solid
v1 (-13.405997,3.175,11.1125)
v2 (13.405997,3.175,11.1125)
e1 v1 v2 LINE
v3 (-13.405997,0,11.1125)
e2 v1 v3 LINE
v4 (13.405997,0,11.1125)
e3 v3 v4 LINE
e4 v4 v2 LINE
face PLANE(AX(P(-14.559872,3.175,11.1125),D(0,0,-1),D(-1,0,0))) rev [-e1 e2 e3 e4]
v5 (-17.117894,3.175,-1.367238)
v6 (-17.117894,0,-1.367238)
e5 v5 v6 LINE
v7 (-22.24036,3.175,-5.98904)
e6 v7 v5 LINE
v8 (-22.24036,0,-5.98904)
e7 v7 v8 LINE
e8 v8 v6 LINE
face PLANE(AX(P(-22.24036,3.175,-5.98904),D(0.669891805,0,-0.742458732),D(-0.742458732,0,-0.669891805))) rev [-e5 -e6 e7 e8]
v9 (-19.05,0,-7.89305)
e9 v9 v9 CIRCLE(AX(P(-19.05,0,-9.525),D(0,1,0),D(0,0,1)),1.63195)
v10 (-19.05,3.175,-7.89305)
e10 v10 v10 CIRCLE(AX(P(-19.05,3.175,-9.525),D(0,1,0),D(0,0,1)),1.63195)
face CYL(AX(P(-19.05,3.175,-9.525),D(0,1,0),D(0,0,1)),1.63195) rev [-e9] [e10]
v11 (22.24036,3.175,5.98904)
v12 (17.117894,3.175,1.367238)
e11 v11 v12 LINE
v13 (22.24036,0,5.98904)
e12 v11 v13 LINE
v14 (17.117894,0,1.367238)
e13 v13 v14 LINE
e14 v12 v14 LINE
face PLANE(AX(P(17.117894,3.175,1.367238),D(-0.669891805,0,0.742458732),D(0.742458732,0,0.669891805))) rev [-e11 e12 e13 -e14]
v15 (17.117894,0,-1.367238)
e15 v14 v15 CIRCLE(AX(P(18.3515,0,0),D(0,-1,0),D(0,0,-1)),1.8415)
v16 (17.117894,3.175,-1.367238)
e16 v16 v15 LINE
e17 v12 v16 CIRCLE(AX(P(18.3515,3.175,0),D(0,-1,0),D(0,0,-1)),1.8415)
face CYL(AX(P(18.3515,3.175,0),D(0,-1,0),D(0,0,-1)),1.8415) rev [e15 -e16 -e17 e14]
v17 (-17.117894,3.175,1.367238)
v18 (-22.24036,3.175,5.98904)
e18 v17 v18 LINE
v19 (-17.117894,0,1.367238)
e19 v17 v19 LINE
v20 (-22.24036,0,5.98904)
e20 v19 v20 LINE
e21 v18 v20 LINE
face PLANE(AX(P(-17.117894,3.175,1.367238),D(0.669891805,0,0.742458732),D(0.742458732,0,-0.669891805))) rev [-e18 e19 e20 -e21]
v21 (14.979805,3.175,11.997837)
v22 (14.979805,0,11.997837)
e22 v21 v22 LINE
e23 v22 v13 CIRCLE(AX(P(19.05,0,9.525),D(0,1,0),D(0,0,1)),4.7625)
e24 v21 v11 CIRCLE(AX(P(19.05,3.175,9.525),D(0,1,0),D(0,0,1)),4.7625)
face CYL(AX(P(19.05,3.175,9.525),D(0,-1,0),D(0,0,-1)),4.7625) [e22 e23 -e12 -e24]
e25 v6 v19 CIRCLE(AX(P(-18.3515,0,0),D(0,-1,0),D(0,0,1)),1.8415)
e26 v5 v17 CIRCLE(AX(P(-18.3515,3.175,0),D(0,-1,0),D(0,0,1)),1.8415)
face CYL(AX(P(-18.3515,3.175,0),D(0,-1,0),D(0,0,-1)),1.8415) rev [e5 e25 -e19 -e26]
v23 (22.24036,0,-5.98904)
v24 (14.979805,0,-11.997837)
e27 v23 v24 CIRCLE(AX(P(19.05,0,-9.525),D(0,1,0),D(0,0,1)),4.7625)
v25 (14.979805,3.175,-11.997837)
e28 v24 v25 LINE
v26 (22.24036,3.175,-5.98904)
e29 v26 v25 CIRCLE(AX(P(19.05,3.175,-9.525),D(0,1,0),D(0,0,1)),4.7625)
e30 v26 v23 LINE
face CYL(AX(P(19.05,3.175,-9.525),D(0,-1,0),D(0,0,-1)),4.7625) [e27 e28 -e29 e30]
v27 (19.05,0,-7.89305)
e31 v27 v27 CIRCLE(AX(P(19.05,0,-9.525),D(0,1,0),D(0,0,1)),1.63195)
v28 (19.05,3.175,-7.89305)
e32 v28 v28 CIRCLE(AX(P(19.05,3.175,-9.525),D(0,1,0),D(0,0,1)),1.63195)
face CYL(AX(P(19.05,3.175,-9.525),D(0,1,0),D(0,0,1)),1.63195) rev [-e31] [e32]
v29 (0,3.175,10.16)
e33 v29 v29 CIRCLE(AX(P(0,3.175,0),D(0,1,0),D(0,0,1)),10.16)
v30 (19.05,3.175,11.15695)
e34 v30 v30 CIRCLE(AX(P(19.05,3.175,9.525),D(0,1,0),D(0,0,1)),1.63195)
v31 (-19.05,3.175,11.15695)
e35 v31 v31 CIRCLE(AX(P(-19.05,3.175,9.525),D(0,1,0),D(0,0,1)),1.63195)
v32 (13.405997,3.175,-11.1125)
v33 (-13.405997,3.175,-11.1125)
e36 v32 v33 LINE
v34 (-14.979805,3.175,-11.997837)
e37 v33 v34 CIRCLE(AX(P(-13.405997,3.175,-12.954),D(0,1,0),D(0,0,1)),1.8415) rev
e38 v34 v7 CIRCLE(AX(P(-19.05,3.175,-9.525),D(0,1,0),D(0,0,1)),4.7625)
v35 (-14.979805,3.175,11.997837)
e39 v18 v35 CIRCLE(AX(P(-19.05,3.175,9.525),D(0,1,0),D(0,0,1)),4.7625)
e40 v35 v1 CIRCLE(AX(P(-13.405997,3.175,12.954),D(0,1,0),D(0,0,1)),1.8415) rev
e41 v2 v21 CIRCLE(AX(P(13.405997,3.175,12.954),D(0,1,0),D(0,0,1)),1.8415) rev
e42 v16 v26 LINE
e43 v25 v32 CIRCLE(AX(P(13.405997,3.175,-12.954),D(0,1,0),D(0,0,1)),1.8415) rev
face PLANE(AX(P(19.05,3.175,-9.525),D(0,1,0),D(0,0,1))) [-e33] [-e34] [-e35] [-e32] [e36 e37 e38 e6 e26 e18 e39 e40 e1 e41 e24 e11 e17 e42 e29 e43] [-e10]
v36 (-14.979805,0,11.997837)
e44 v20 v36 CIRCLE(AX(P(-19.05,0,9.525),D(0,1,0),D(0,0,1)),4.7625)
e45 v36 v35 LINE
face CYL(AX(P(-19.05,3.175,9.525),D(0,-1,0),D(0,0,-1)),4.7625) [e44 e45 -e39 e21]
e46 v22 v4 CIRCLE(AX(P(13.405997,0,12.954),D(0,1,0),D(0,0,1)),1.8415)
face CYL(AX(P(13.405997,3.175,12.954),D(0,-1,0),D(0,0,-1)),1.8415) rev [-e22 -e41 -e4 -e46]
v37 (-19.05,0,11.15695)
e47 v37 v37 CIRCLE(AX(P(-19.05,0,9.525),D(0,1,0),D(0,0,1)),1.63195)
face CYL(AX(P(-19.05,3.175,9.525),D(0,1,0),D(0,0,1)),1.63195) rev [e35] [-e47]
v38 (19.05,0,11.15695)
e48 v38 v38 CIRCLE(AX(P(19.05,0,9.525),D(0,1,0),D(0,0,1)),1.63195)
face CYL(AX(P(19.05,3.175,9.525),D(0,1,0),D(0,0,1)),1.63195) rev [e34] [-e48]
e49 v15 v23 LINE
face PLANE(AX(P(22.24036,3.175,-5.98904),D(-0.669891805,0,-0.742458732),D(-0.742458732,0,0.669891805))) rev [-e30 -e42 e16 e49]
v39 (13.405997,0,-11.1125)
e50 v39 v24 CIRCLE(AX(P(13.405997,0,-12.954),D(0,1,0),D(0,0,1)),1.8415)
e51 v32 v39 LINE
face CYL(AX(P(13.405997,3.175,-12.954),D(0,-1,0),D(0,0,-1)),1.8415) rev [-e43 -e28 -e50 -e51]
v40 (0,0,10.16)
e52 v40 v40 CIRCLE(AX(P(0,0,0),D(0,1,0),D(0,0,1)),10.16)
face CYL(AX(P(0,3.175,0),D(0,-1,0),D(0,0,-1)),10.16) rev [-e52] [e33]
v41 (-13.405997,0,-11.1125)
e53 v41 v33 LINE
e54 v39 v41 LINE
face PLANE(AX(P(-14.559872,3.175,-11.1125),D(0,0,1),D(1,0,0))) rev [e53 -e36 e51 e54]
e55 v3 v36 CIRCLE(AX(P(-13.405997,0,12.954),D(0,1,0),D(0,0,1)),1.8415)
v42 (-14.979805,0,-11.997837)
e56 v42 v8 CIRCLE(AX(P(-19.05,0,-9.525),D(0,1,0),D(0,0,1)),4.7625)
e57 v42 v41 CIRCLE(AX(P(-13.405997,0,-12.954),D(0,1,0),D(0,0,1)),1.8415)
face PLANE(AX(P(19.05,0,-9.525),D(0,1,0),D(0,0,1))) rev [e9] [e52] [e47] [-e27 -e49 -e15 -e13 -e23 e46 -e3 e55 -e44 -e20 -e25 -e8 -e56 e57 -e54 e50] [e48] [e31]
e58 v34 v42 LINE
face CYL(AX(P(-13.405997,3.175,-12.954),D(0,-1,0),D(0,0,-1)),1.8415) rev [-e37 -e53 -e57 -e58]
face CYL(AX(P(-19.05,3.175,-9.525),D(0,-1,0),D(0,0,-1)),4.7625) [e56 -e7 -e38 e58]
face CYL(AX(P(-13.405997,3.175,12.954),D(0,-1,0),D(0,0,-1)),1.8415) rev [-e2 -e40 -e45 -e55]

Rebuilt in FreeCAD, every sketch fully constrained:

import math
import FreeCAD as App
import Part
import Sketcher

V = App.Vector
Q = App.Units.Quantity


def edges_at(feature, points):
    """Names of the edges that pass closest to the given points."""
    edges = feature.Shape.Edges
    near = lambda p: min(range(len(edges)), key=lambda i: edges[i].distToShape(Part.Vertex(*p))[0])
    return sorted({f"Edge{near(p) + 1}" for p in points})

doc = App.newDocument("Part")
body = doc.addObject("PartDesign::Body", "Body")

# Sketch on XZ plane
sketch1 = body.newObject("Sketcher::SketchObject", "Sketch")
sketch1.AttachmentSupport = (doc.getObject("XZ_Plane"), [""])
sketch1.MapMode = "FlatFace"
sketch1.addGeometry([
    Part.LineSegment(V(-22.24036, -5.98904, 0), V(-17.117894, -1.367238, 0)),  # 0
    Part.ArcOfCircle(Part.Circle(V(-18.3515, 0, 0), V(0, 0, 1), 1.8415), math.radians(-47.941285), math.radians(47.941285)),  # 1
    Part.LineSegment(V(-17.117894, 1.367238, 0), V(-22.24036, 5.98904, 0)),  # 2
    Part.ArcOfCircle(Part.Circle(V(-19.05, 9.525, 0), V(0, 0, 1), 4.7625), math.radians(19.471221), math.radians(227.941285)),  # 3
    Part.LineSegment(V(-14.559872, 11.1125, 0), V(14.559872, 11.1125, 0)),  # 4
    Part.ArcOfCircle(Part.Circle(V(19.05, 9.525, 0), V(0, 0, 1), 4.7625), math.radians(-47.941285), math.radians(160.528779)),  # 5
    Part.LineSegment(V(22.24036, 5.98904, 0), V(17.117894, 1.367238, 0)),  # 6
    Part.ArcOfCircle(Part.Circle(V(18.3515, 0, 0), V(0, 0, 1), 1.8415), math.radians(132.058715), math.radians(227.941285)),  # 7
    Part.LineSegment(V(17.117894, -1.367238, 0), V(22.24036, -5.98904, 0)),  # 8
    Part.ArcOfCircle(Part.Circle(V(19.05, -9.525, 0), V(0, 0, 1), 4.7625), math.radians(-160.528779), math.radians(47.941285)),  # 9
    Part.LineSegment(V(14.559872, -11.1125, 0), V(-14.559872, -11.1125, 0)),  # 10
    Part.ArcOfCircle(Part.Circle(V(-19.05, -9.525, 0), V(0, 0, 1), 4.7625), math.radians(132.058715), math.radians(340.528779)),  # 11
    Part.Circle(V(0, 0, 0), V(0, 0, 1), 10.16),  # 12
], False)
sketch1.addConstraint([
    Sketcher.Constraint("Tangent", 0, 2, 1, 1),
    Sketcher.Constraint("Tangent", 1, 2, 2, 1),
    Sketcher.Constraint("Tangent", 2, 2, 3, 2),
    Sketcher.Constraint("Coincident", 3, 1, 4, 1),
    Sketcher.Constraint("Coincident", 4, 2, 5, 2),
    Sketcher.Constraint("Tangent", 5, 1, 6, 1),
    Sketcher.Constraint("Tangent", 6, 2, 7, 1),
    Sketcher.Constraint("Tangent", 7, 2, 8, 1),
    Sketcher.Constraint("Tangent", 8, 2, 9, 2),
    Sketcher.Constraint("Coincident", 9, 1, 10, 1),
    Sketcher.Constraint("Coincident", 10, 2, 11, 2),
    Sketcher.Constraint("Tangent", 11, 1, 0, 1),
    Sketcher.Constraint("Horizontal", 4),
    Sketcher.Constraint("Horizontal", 10),
    Sketcher.Constraint("Coincident", 12, 3, -1, 1),
    Sketcher.Constraint("Equal", 3, 5),
    Sketcher.Constraint("Equal", 1, 7),
    Sketcher.Constraint("Equal", 5, 9),
    Sketcher.Constraint("Equal", 9, 11),
    Sketcher.Constraint("Symmetric", 1, 3, 7, 3, -1, 1),
    Sketcher.Constraint("Symmetric", 3, 3, 9, 3, -1, 1),
    Sketcher.Constraint("Symmetric", 5, 3, 11, 3, -1, 1),
    Sketcher.Constraint("Symmetric", 3, 3, 5, 3, -2),
    Sketcher.Constraint("PointOnObject", 1, 3, -1),
    Sketcher.Constraint("Vertical", 4, 2, 9, 1),
    Sketcher.Constraint("Diameter", 12, Q("0.8 in")),
    Sketcher.Constraint("Radius", 3, Q("0.1875 in")),
    Sketcher.Constraint("Radius", 1, Q("0.0725 in")),
    Sketcher.Constraint("DistanceX", 3, 3, 5, 3, Q("1.5 in")),
    Sketcher.Constraint("DistanceY", 9, 3, 5, 3, Q("0.75 in")),
    Sketcher.Constraint("DistanceY", -1, 1, 3, 1, Q("0.4375 in")),
    Sketcher.Constraint("DistanceX", 1, 3, 7, 3, Q("1.445 in")),
])
pad1 = body.newObject("PartDesign::Pad", "Pad")
pad1.Profile = sketch1
pad1.Length = Q("0.125 in")
pad1.Reversed = True

# Sketch on XZ plane
sketch2 = body.newObject("Sketcher::SketchObject", "Sketch001")
sketch2.AttachmentSupport = (doc.getObject("XZ_Plane"), [""])
sketch2.MapMode = "FlatFace"
sketch2.AttachmentOffset = App.Placement(V(0, 0, -0.125 * 25.4), App.Rotation())
sketch2.addGeometry([
    Part.Circle(V(-19.05, -9.525, 0), V(0, 0, 1), 1.63195),
    Part.Circle(V(-19.05, 9.525, 0), V(0, 0, 1), 1.63195),
    Part.Circle(V(19.05, 9.525, 0), V(0, 0, 1), 1.63195),
    Part.Circle(V(19.05, -9.525, 0), V(0, 0, 1), 1.63195),
], False)
sketch2.addConstraint([
    Sketcher.Constraint("Equal", 0, 1),
    Sketcher.Constraint("Equal", 1, 2),
    Sketcher.Constraint("Equal", 2, 3),
    Sketcher.Constraint("Symmetric", 0, 3, 2, 3, -1, 1),
    Sketcher.Constraint("Symmetric", 1, 3, 3, 3, -1, 1),
    Sketcher.Constraint("Symmetric", 1, 3, 2, 3, -2),
    Sketcher.Constraint("Diameter", 0, Q("0.1285 in")),
    Sketcher.Constraint("DistanceX", 1, 3, 2, 3, Q("1.5 in")),
    Sketcher.Constraint("DistanceY", 0, 3, 1, 3, Q("0.75 in")),
])
doc.recompute()
hole = body.newObject("PartDesign::Hole", "Hole")
hole.Profile = sketch2
hole.ThreadType = "None"
hole.Diameter = Q("0.1285 in")
hole.DepthType = "ThroughAll"
hole.Reversed = True
doc.recompute()

fillet = body.newObject("PartDesign::Fillet", "Fillet")
fillet.Base = (hole, edges_at(hole, [
    (14.56, 1.587, 11.113),
    (-14.56, 1.587, 11.113),
    (-14.56, 1.587, -11.113),
    (14.56, 1.587, -11.113),
]))
fillet.Radius = Q("0.0725 in")

doc.recompute()
